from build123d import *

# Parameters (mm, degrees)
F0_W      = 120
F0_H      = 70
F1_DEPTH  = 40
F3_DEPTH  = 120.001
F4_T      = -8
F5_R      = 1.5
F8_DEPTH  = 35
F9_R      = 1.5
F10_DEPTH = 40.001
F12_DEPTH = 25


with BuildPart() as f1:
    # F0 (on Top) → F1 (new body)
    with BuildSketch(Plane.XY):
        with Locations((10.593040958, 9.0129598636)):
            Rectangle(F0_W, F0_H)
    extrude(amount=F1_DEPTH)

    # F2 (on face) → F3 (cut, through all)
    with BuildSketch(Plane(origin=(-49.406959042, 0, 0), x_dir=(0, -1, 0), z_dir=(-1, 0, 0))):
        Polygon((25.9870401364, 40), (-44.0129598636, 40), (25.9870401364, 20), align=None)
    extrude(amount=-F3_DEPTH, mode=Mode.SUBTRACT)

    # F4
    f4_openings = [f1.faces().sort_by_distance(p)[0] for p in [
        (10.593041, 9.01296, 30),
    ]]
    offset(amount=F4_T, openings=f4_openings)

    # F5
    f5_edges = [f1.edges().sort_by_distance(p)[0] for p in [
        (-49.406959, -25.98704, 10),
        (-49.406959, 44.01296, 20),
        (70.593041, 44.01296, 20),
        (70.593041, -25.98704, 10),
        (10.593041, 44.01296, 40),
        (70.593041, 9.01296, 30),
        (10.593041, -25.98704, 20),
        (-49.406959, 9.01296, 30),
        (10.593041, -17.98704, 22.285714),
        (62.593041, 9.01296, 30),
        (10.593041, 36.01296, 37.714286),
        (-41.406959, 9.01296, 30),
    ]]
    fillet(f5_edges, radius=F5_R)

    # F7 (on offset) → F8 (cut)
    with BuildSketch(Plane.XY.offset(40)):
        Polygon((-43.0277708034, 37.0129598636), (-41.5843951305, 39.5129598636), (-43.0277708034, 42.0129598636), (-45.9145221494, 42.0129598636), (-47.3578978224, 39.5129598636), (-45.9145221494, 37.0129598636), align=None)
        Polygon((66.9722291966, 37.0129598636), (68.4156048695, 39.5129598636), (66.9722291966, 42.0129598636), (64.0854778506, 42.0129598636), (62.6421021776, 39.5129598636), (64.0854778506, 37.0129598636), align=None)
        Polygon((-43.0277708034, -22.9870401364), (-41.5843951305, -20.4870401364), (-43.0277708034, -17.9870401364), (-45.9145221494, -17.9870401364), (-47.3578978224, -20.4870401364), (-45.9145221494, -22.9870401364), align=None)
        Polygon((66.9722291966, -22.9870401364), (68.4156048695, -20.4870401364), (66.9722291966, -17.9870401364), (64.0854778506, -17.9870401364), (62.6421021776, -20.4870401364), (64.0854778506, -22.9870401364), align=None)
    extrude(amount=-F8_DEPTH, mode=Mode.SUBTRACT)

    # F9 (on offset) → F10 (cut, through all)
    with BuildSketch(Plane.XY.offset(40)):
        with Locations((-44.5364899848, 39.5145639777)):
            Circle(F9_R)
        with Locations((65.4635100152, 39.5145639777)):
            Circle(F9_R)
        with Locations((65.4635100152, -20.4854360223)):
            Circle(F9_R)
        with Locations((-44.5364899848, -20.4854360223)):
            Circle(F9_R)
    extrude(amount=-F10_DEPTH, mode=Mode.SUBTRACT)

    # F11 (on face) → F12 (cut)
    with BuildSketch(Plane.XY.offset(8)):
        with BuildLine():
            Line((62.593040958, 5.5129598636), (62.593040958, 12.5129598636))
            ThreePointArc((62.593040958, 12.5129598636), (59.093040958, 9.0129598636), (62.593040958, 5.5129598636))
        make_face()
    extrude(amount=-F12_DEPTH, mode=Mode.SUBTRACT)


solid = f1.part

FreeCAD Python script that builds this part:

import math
import FreeCAD as App
import Part
import Sketcher

V = App.Vector
Q = App.Units.Quantity


def edges_at(feature, points):
    """Names of the edges that pass closest to the given points."""
    edges = feature.Shape.Edges
    near = lambda p: min(range(len(edges)), key=lambda i: edges[i].distToShape(Part.Vertex(*p))[0])
    return sorted({f"Edge{near(p) + 1}" for p in points})


def faces_at(feature, points):
    """Names of the faces that lie closest to the given points."""
    faces = feature.Shape.Faces
    near = lambda p: min(range(len(faces)), key=lambda i: faces[i].distToShape(Part.Vertex(*p))[0])
    return sorted({f"Face{near(p) + 1}" for p in points})

doc = App.newDocument("Part")
params = doc.addObject("Spreadsheet::Sheet", "Params")
for row, (alias, value) in enumerate([
    ("sketch1_width", "120 mm"),
    ("sketch1_height", "70 mm"),
    ("pad1_length", "40 mm"),
    ("sketch2_width", "70 mm"),
    ("sketch2_height", "20 mm"),
    ("thickness_wall", "8 mm"),
    ("fillet_radius", "1.5 mm"),
    ("pocket2_length", "35 mm"),
    ("sketch4_diameter", "3 mm"),
    ("sketch5_radius", "3.5 mm"),
    ("pocket4_length", "25 mm"),
], start=1):
    params.set(f"A{row}", alias)
    params.set(f"B{row}", "=" + value)
    params.setAlias(f"B{row}", alias)

body = doc.addObject("PartDesign::Body", "Body")

sketch1 = body.newObject("Sketcher::SketchObject", "Sketch")
sketch1.AttachmentSupport = (doc.getObject("XY_Plane"), [""])
sketch1.MapMode = "FlatFace"
sketch1.addGeometry([
    Part.LineSegment(V(-49, 44, 0), V(-49, -26, 0)),
    Part.LineSegment(V(-49, -26, 0), V(71, -26, 0)),
    Part.LineSegment(V(71, -26, 0), V(71, 44, 0)),
    Part.LineSegment(V(71, 44, 0), V(-49, 44, 0)),
], False)
sketch1.addConstraint([
    Sketcher.Constraint("Coincident", 0, 2, 1, 1),
    Sketcher.Constraint("Coincident", 1, 2, 2, 1),
    Sketcher.Constraint("Coincident", 2, 2, 3, 1),
    Sketcher.Constraint("Coincident", 3, 2, 0, 1),
    Sketcher.Constraint("Vertical", 0),
    Sketcher.Constraint("Horizontal", 1),
    Sketcher.Constraint("Vertical", 2),
    Sketcher.Constraint("Horizontal", 3),
    Sketcher.Constraint("DistanceX", 1, 1, 1, 2, Q("120 mm")),
    Sketcher.Constraint("DistanceY", 0, 2, 0, 1, Q("70 mm")),
    Sketcher.Constraint("DistanceX", 0, 2, -1, 1, Q("49.406959 mm")),
    Sketcher.Constraint("DistanceY", 0, 2, -1, 1, Q("25.98704 mm")),
])
sketch1.setExpression("Constraints[8]", "Params.sketch1_width")
sketch1.setExpression("Constraints[9]", "Params.sketch1_height")
pad1 = body.newObject("PartDesign::Pad", "Pad")
pad1.Profile = sketch1
pad1.setExpression("Length", "Params.pad1_length")

sketch2 = body.newObject("Sketcher::SketchObject", "Sketch001")
sketch2.AttachmentSupport = (doc.getObject("YZ_Plane"), [""])
sketch2.MapMode = "FlatFace"
sketch2.AttachmentOffset = App.Placement(V(0, 0, -49.406959), App.Rotation())
sketch2.addGeometry([
    Part.LineSegment(V(-26, 40, 0), V(44, 40, 0)),
    Part.LineSegment(V(44, 40, 0), V(-26, 20, 0)),
    Part.LineSegment(V(-26, 20, 0), V(-26, 40, 0)),
], False)
sketch2.addConstraint([
    Sketcher.Constraint("Coincident", 0, 2, 1, 1),
    Sketcher.Constraint("Coincident", 1, 2, 2, 1),
    Sketcher.Constraint("Coincident", 2, 2, 0, 1),
    Sketcher.Constraint("Horizontal", 0),
    Sketcher.Constraint("Vertical", 2),
    Sketcher.Constraint("DistanceX", 0, 1, 0, 2, Q("70 mm")),
    Sketcher.Constraint("DistanceY", 2, 1, 2, 2, Q("20 mm")),
    Sketcher.Constraint("DistanceY", -1, 1, 0, 2, Q("40 mm")),
    Sketcher.Constraint("DistanceX", -1, 1, 0, 2, Q("44.01296 mm")),
])
sketch2.setExpression("Constraints[5]", "Params.sketch2_width")
sketch2.setExpression("Constraints[6]", "Params.sketch2_height")
pocket1 = body.newObject("PartDesign::Pocket", "Pocket")
pocket1.Profile = sketch2
pocket1.Type = "ThroughAll"
pocket1.Reversed = True
doc.recompute()

thickness = body.newObject("PartDesign::Thickness", "Thickness")
thickness.Base = (pocket1, faces_at(pocket1, [(10.593, 9.013, 30)]))
thickness.setExpression("Value", "Params.thickness_wall")
thickness.Reversed = True
thickness.Join = "Arc"
doc.recompute()

fillet = body.newObject("PartDesign::Fillet", "Fillet")
fillet.Base = (thickness, edges_at(thickness, [
    (-49.407, -25.987, 10),
    (-49.407, 44.013, 20),
    (70.593, 44.013, 20),
    (70.593, -25.987, 10),
    (10.593, 44.013, 40),
    (70.593, 9.013, 30),
    (10.593, -25.987, 20),
    (-49.407, 9.013, 30),
    (10.593, -17.987, 22.286),
    (62.593, 9.013, 30),
    (10.593, 36.013, 37.714),
    (-41.407, 9.013, 30),
]))
fillet.setExpression("Radius", "Params.fillet_radius")

sketch3 = body.newObject("Sketcher::SketchObject", "Sketch002")
sketch3.AttachmentSupport = (doc.getObject("XY_Plane"), [""])
sketch3.MapMode = "FlatFace"
sketch3.AttachmentOffset = App.Placement(V(0, 0, 40), App.Rotation())
sketch3.addGeometry([
    Part.LineSegment(V(-43, 37, 0), V(-41.6, 39.5, 0)),
    Part.LineSegment(V(-41.6, 39.5, 0), V(-43, 42, 0)),
    Part.LineSegment(V(-43, 42, 0), V(-45.9, 42, 0)),
    Part.LineSegment(V(-45.9, 42, 0), V(-47.4, 39.5, 0)),
    Part.LineSegment(V(-47.4, 39.5, 0), V(-45.9, 37, 0)),
    Part.LineSegment(V(-45.9, 37, 0), V(-43, 37, 0)),
    Part.LineSegment(V(67, 37, 0), V(68.4, 39.5, 0)),
    Part.LineSegment(V(68.4, 39.5, 0), V(67, 42, 0)),
    Part.LineSegment(V(67, 42, 0), V(64.1, 42, 0)),
    Part.LineSegment(V(64.1, 42, 0), V(62.6, 39.5, 0)),
    Part.LineSegment(V(62.6, 39.5, 0), V(64.1, 37, 0)),
    Part.LineSegment(V(64.1, 37, 0), V(67, 37, 0)),
    Part.LineSegment(V(-43, -23, 0), V(-41.6, -20.5, 0)),
    Part.LineSegment(V(-41.6, -20.5, 0), V(-43, -18, 0)),
    Part.LineSegment(V(-43, -18, 0), V(-45.9, -18, 0)),
    Part.LineSegment(V(-45.9, -18, 0), V(-47.4, -20.5, 0)),
    Part.LineSegment(V(-47.4, -20.5, 0), V(-45.9, -23, 0)),
    Part.LineSegment(V(-45.9, -23, 0), V(-43, -23, 0)),
    Part.LineSegment(V(67, -23, 0), V(68.4, -20.5, 0)),
    Part.LineSegment(V(68.4, -20.5, 0), V(67, -18, 0)),
    Part.LineSegment(V(67, -18, 0), V(64.1, -18, 0)),
    Part.LineSegment(V(64.1, -18, 0), V(62.6, -20.5, 0)),
    Part.LineSegment(V(62.6, -20.5, 0), V(64.1, -23, 0)),
    Part.LineSegment(V(64.1, -23, 0), V(67, -23, 0)),
], False)
sketch3.addConstraint([
    Sketcher.Constraint("Coincident", 0, 2, 1, 1),
    Sketcher.Constraint("Coincident", 1, 2, 2, 1),
    Sketcher.Constraint("Coincident", 2, 2, 3, 1),
    Sketcher.Constraint("Coincident", 3, 2, 4, 1),
    Sketcher.Constraint("Coincident", 4, 2, 5, 1),
    Sketcher.Constraint("Coincident", 5, 2, 0, 1),
    Sketcher.Constraint("Coincident", 6, 2, 7, 1),
    Sketcher.Constraint("Coincident", 7, 2, 8, 1),
    Sketcher.Constraint("Coincident", 8, 2, 9, 1),
    Sketcher.Constraint("Coincident", 9, 2, 10, 1),
    Sketcher.Constraint("Coincident", 10, 2, 11, 1),
    Sketcher.Constraint("Coincident", 11, 2, 6, 1),
    Sketcher.Constraint("Coincident", 12, 2, 13, 1),
    Sketcher.Constraint("Coincident", 13, 2, 14, 1),
    Sketcher.Constraint("Coincident", 14, 2, 15, 1),
    Sketcher.Constraint("Coincident", 15, 2, 16, 1),
    Sketcher.Constraint("Coincident", 16, 2, 17, 1),
    Sketcher.Constraint("Coincident", 17, 2, 12, 1),
    Sketcher.Constraint("Coincident", 18, 2, 19, 1),
    Sketcher.Constraint("Coincident", 19, 2, 20, 1),
    Sketcher.Constraint("Coincident", 20, 2, 21, 1),
    Sketcher.Constraint("Coincident", 21, 2, 22, 1),
    Sketcher.Constraint("Coincident", 22, 2, 23, 1),
    Sketcher.Constraint("Coincident", 23, 2, 18, 1),
    Sketcher.Constraint("Horizontal", 2),
    Sketcher.Constraint("Horizontal", 5),
    Sketcher.Constraint("Horizontal", 8),
    Sketcher.Constraint("Horizontal", 11),
    Sketcher.Constraint("Horizontal", 14),
    Sketcher.Constraint("Horizontal", 17),
    Sketcher.Constraint("Horizontal", 20),
    Sketcher.Constraint("Horizontal", 23),
    Sketcher.Constraint("Parallel", 0, 3),
    Sketcher.Constraint("Parallel", 1, 4),
    Sketcher.Constraint("Parallel", 3, 6),
    Sketcher.Constraint("Parallel", 4, 7),
    Sketcher.Constraint("Parallel", 6, 9),
    Sketcher.Constraint("Parallel", 7, 10),
    Sketcher.Constraint("Parallel", 9, 12),
    Sketcher.Constraint("Parallel", 10, 13),
    Sketcher.Constraint("Parallel", 12, 15),
    Sketcher.Constraint("Parallel", 13, 16),
    Sketcher.Constraint("Parallel", 15, 18),
    Sketcher.Constraint("Parallel", 16, 19),
    Sketcher.Constraint("Parallel", 18, 21),
    Sketcher.Constraint("Parallel", 19, 22),
    Sketcher.Constraint("Horizontal", 0, 2, 3, 2),
    Sketcher.Constraint("Horizontal", 3, 2, 6, 2),
    Sketcher.Constraint("Horizontal", 2, 2, 7, 2),
    Sketcher.Constraint("Horizontal", 6, 2, 9, 2),
    Sketcher.Constraint("Horizontal", 5, 2, 10, 2),
    Sketcher.Constraint("Horizontal", 12, 2, 15, 2),
    Sketcher.Constraint("Horizontal", 15, 2, 18, 2),
    Sketcher.Constraint("Horizontal", 14, 2, 19, 2),
    Sketcher.Constraint("Horizontal", 18, 2, 21, 2),
    Sketcher.Constraint("Horizontal", 17, 2, 22, 2),
    Sketcher.Constraint("Vertical", 2, 2, 4, 2),
    Sketcher.Constraint("Vertical", 1, 2, 5, 2),
    Sketcher.Constraint("Vertical", 0, 2, 12, 2),
    Sketcher.Constraint("Vertical", 5, 2, 13, 2),
    Sketcher.Constraint("Vertical", 4, 2, 14, 2),
    Sketcher.Constraint("Vertical", 14, 2, 16, 2),
    Sketcher.Constraint("Vertical", 6, 2, 18, 2),
    Sketcher.Constraint("Vertical", 10, 2, 20, 2),
    Sketcher.Constraint("Equal", 5, 8),
    Sketcher.Constraint("Angle", 0, Q("60 deg")),
    Sketcher.Constraint("DistanceY", 4, 2, 2, 2, Q("5 mm")),
    Sketcher.Constraint("DistanceX", 0, 2, 6, 2, Q("110 mm")),
    Sketcher.Constraint("DistanceY", 12, 2, 0, 2, Q("60 mm")),
    Sketcher.Constraint("DistanceX", 2, 2, 2, 1, Q("2.886751 mm")),
    Sketcher.Constraint("DistanceY", -1, 1, 0, 2, Q("39.51296 mm")),
    Sketcher.Constraint("DistanceX", 1, 2, -1, 1, Q("43.027771 mm")),
])
pocket2 = body.newObject("PartDesign::Pocket", "Pocket001")
pocket2.Profile = sketch3
pocket2.setExpression("Length", "Params.pocket2_length")

sketch4 = body.newObject("Sketcher::SketchObject", "Sketch003")
sketch4.AttachmentSupport = (doc.getObject("XY_Plane"), [""])
sketch4.MapMode = "FlatFace"
sketch4.AttachmentOffset = App.Placement(V(0, 0, 40), App.Rotation())
sketch4.addGeometry([
    Part.Circle(V(-44.5, 39.5, 0), V(0, 0, 1), 1.5),
    Part.Circle(V(65.5, 39.5, 0), V(0, 0, 1), 1.5),
    Part.Circle(V(65.5, -20.5, 0), V(0, 0, 1), 1.5),
    Part.Circle(V(-44.5, -20.5, 0), V(0, 0, 1), 1.5),
], False)
sketch4.addConstraint([
    Sketcher.Constraint("Equal", 0, 1),
    Sketcher.Constraint("Equal", 1, 2),
    Sketcher.Constraint("Equal", 2, 3),
    Sketcher.Constraint("Horizontal", 0, 3, 1, 3),
    Sketcher.Constraint("Horizontal", 2, 3, 3, 3),
    Sketcher.Constraint("Vertical", 1, 3, 2, 3),
    Sketcher.Constraint("Vertical", 0, 3, 3, 3),
    Sketcher.Constraint("Diameter", 0, Q("3 mm")),
    Sketcher.Constraint("DistanceX", 0, 3, 1, 3, Q("110 mm")),
    Sketcher.Constraint("DistanceY", 2, 3, 1, 3, Q("60 mm")),
    Sketcher.Constraint("DistanceX", 0, 3, -1, 1, Q("44.53649 mm")),
    Sketcher.Constraint("DistanceY", -1, 1, 0, 3, Q("39.514564 mm")),
])
sketch4.setExpression("Constraints[7]", "Params.sketch4_diameter")
pocket3 = body.newObject("PartDesign::Pocket", "Pocket002")
pocket3.Profile = sketch4
pocket3.Type = "ThroughAll"

sketch5 = body.newObject("Sketcher::SketchObject", "Sketch004")
sketch5.AttachmentSupport = (doc.getObject("XY_Plane"), [""])
sketch5.MapMode = "FlatFace"
sketch5.AttachmentOffset = App.Placement(V(0, 0, 8), App.Rotation())
sketch5.addGeometry([
    Part.LineSegment(V(62.6, 5.5, 0), V(62.6, 12.5, 0)),
    Part.ArcOfCircle(Part.Circle(V(62.6, 9, 0), V(0, 0, 1), 3.5), math.radians(90), math.radians(270)),
], False)
sketch5.addConstraint([
    Sketcher.Constraint("Coincident", 0, 1, 1, 2),
    Sketcher.Constraint("Coincident", 1, 1, 0, 2),
    Sketcher.Constraint("Vertical", 0),
    Sketcher.Constraint("Vertical", 1, 3, 0, 1),
    Sketcher.Constraint("Radius", 1, Q("3.5 mm")),
    Sketcher.Constraint("DistanceX", -1, 1, 1, 3, Q("62.593041 mm")),
    Sketcher.Constraint("DistanceY", -1, 1, 1, 3, Q("9.01296 mm")),
])
sketch5.setExpression("Constraints[4]", "Params.sketch5_radius")
pocket4 = body.newObject("PartDesign::Pocket", "Pocket003")
pocket4.Profile = sketch5
pocket4.setExpression("Length", "Params.pocket4_length")

doc.recompute()
